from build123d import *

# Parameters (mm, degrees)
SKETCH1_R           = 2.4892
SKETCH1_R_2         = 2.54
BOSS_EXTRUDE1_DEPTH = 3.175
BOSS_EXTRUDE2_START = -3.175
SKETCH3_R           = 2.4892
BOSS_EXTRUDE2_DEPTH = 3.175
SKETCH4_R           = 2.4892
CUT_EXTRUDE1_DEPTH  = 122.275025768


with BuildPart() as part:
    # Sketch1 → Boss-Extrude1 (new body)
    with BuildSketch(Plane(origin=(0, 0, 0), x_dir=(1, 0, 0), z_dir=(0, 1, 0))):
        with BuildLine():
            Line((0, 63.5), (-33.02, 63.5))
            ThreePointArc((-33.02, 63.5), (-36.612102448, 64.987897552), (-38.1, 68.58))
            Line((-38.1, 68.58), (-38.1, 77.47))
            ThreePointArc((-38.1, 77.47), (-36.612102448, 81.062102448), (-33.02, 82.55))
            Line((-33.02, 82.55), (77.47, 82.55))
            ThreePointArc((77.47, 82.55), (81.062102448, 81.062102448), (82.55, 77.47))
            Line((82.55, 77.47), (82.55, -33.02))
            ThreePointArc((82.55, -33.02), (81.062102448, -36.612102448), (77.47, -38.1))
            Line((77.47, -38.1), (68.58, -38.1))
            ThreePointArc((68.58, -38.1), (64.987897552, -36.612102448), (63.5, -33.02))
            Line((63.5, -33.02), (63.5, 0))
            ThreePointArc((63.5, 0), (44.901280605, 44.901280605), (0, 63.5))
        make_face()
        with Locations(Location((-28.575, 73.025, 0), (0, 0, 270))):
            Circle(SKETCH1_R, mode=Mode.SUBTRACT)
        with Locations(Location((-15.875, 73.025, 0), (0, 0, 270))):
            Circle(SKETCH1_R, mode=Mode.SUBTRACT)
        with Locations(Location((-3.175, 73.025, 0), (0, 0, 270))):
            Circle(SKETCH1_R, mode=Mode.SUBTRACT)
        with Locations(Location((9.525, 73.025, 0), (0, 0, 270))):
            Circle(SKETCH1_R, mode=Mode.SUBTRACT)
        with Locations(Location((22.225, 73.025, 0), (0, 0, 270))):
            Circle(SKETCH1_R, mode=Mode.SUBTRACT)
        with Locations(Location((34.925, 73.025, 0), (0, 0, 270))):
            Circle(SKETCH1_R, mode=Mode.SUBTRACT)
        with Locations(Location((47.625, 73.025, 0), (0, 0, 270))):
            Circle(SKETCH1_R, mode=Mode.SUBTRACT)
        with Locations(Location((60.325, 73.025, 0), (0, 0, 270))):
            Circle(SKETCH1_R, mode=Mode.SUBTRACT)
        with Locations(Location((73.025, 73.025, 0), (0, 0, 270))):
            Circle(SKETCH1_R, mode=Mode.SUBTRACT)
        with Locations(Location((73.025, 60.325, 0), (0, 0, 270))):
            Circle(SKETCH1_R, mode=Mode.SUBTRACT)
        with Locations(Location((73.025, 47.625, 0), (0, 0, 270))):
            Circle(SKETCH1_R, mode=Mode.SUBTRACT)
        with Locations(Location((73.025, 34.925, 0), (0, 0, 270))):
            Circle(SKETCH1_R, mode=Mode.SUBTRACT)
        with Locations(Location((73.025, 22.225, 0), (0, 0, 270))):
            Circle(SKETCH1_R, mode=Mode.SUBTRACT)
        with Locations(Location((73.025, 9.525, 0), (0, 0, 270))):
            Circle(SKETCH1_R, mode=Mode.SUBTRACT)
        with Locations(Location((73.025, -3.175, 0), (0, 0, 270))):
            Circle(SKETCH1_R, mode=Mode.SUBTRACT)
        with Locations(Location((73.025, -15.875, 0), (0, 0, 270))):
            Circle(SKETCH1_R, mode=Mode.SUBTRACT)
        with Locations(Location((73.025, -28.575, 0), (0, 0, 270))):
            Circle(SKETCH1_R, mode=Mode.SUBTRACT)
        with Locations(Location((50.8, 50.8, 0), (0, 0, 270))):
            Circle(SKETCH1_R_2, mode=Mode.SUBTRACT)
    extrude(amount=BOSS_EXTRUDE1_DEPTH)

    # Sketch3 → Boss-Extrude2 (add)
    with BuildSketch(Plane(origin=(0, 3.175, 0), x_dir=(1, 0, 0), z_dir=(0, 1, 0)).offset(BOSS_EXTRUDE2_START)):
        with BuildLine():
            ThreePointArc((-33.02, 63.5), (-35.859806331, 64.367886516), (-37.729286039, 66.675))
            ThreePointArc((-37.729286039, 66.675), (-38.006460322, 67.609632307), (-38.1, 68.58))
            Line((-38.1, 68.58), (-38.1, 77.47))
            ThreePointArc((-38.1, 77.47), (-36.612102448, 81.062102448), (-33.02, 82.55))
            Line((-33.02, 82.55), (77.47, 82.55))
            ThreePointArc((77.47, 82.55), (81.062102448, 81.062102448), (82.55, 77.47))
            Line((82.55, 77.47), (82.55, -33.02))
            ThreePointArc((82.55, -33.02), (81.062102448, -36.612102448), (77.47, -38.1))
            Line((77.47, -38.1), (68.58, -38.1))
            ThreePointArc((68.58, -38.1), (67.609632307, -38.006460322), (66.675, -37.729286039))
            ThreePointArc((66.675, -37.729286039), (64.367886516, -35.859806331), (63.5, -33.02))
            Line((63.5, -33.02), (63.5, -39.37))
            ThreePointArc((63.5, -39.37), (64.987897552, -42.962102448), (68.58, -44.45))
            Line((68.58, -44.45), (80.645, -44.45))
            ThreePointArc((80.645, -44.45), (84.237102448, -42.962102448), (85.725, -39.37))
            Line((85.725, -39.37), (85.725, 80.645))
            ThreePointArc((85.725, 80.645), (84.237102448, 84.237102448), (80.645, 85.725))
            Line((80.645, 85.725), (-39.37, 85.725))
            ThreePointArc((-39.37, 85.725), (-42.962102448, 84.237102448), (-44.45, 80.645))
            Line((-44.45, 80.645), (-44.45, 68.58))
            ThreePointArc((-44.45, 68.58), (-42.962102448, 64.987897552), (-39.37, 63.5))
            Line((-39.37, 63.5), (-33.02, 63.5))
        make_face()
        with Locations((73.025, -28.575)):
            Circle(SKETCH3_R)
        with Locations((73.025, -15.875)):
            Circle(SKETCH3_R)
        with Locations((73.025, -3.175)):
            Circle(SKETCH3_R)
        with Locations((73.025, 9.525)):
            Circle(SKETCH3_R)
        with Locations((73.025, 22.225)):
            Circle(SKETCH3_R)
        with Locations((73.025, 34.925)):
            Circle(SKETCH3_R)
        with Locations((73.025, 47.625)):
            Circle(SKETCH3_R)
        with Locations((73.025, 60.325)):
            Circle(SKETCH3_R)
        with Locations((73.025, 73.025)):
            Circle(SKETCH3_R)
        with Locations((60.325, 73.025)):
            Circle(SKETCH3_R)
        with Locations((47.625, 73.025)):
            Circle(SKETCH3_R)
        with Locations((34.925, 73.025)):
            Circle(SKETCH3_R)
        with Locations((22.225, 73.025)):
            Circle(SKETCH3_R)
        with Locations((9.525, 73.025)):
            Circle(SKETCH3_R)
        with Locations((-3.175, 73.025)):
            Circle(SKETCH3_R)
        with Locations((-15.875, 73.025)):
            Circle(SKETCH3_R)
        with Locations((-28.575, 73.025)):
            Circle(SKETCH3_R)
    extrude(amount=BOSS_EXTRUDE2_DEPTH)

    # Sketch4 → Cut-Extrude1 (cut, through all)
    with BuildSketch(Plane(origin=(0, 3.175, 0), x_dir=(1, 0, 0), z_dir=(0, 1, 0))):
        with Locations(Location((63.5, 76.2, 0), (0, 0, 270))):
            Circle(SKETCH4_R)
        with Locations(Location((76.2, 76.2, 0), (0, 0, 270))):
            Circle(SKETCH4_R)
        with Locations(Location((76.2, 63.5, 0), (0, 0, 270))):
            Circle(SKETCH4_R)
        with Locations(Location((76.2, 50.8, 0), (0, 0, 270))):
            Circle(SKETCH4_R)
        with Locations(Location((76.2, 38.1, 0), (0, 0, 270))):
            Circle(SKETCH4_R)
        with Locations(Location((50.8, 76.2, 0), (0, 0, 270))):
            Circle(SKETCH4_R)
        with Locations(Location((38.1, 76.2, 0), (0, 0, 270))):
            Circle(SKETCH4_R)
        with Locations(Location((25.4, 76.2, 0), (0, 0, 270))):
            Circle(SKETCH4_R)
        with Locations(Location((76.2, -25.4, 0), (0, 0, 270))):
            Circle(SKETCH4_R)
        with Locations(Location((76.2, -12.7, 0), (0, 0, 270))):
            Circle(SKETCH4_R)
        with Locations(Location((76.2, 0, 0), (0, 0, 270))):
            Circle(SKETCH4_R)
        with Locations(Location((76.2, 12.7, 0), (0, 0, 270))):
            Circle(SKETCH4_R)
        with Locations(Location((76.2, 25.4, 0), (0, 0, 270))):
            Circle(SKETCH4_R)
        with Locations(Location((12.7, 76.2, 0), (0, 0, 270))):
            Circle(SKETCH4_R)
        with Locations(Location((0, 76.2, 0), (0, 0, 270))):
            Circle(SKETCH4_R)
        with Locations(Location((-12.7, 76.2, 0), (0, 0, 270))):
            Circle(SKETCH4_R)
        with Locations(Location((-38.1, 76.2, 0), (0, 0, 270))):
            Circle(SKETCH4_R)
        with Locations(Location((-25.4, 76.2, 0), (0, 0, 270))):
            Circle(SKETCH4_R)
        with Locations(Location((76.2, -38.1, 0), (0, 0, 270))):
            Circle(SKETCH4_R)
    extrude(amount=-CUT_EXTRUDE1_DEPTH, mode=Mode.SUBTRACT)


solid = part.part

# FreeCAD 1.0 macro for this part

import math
import FreeCAD as App
import Part
import Sketcher
Q = App.Units.Quantity

doc = App.newDocument("Part")
params = doc.addObject("Spreadsheet::Sheet", "Params")
for row, (alias, value) in enumerate([
    ("sketch1_diameter", "0.2 in"),
    ("sketch1_radius", "2.5 in"),
    ("sketch1_radius2", "0.2 in"),
    ("sketch1_diameter2", "0.196 in"),
    ("sketch1_width", "1.3 in"),
    ("pad1_length", "0.125 in"),
    ("sketch2_radius", "0.2 in"),
    ("sketch2_diameter", "0.196 in"),
    ("sketch2_width", "4.35 in"),
    ("sketch2_width2", "0.25 in"),
    ("sketch2_width3", "0.475 in"),
    ("pad2_length", "0.125 in"),
    ("sketch3_diameter", "0.196 in"),
], start=1):
    params.set(f"A{row}", alias)
    params.set(f"B{row}", "=" + value)
    params.setAlias(f"B{row}", alias)

body = doc.addObject("PartDesign::Body", "Body")

# Sketch on XZ plane
sketch1 = body.newObject("Sketcher::SketchObject", "Sketch")
sketch1.AttachmentSupport = (doc.getObject("XZ_Plane"), [""])
sketch1.MapMode = "FlatFace"
sketch1.addGeometry(Part.LineSegment(App.Vector(-33, -63.5, 0), App.Vector(0, -63.5, 0)), False)
sketch1.addGeometry(Part.ArcOfCircle(Part.Circle(App.Vector(0, 0, 0), App.Vector(0, 0, 1), 63.5), math.radians(-90), math.radians(0)), False)
sketch1.addGeometry(Part.LineSegment(App.Vector(63.5, 0, 0), App.Vector(63.5, 33, 0)), False)
sketch1.addGeometry(Part.ArcOfCircle(Part.Circle(App.Vector(68.6, 33, 0), App.Vector(0, 0, 1), 5.1), math.radians(90), math.radians(180)), False)
sketch1.addGeometry(Part.LineSegment(App.Vector(68.6, 38.1, 0), App.Vector(77.5, 38.1, 0)), False)
sketch1.addGeometry(Part.ArcOfCircle(Part.Circle(App.Vector(77.5, 33, 0), App.Vector(0, 0, 1), 5.1), math.radians(0), math.radians(90)), False)
sketch1.addGeometry(Part.LineSegment(App.Vector(82.5, 33, 0), App.Vector(82.5, -77.5, 0)), False)
sketch1.addGeometry(Part.ArcOfCircle(Part.Circle(App.Vector(77.5, -77.5, 0), App.Vector(0, 0, 1), 5.1), math.radians(-90), math.radians(0)), False)
sketch1.addGeometry(Part.LineSegment(App.Vector(77.5, -82.5, 0), App.Vector(-33, -82.5, 0)), False)
sketch1.addGeometry(Part.ArcOfCircle(Part.Circle(App.Vector(-33, -77.5, 0), App.Vector(0, 0, 1), 5.1), math.radians(-180), math.radians(-90)), False)
sketch1.addGeometry(Part.LineSegment(App.Vector(-38.1, -77.5, 0), App.Vector(-38.1, -68.6, 0)), False)
sketch1.addGeometry(Part.ArcOfCircle(Part.Circle(App.Vector(-33, -68.6, 0), App.Vector(0, 0, 1), 5.1), math.radians(90), math.radians(180)), False)
sketch1.addGeometry(Part.Circle(App.Vector(73, 28.6, 0), App.Vector(0, 0, 1), 2.5), False)
sketch1.addGeometry(Part.Circle(App.Vector(73, 15.9, 0), App.Vector(0, 0, 1), 2.5), False)
sketch1.addGeometry(Part.Circle(App.Vector(73, 3.2, 0), App.Vector(0, 0, 1), 2.5), False)
sketch1.addGeometry(Part.Circle(App.Vector(73, -9.5, 0), App.Vector(0, 0, 1), 2.5), False)
sketch1.addGeometry(Part.Circle(App.Vector(73, -22.2, 0), App.Vector(0, 0, 1), 2.5), False)
sketch1.addGeometry(Part.Circle(App.Vector(73, -34.9, 0), App.Vector(0, 0, 1), 2.5), False)
sketch1.addGeometry(Part.Circle(App.Vector(73, -47.6, 0), App.Vector(0, 0, 1), 2.5), False)
sketch1.addGeometry(Part.Circle(App.Vector(73, -60.3, 0), App.Vector(0, 0, 1), 2.5), False)
sketch1.addGeometry(Part.Circle(App.Vector(50.8, -50.8, 0), App.Vector(0, 0, 1), 2.5), False)
sketch1.addGeometry(Part.Circle(App.Vector(73, -73, 0), App.Vector(0, 0, 1), 2.5), False)
sketch1.addGeometry(Part.Circle(App.Vector(60.3, -73, 0), App.Vector(0, 0, 1), 2.5), False)
sketch1.addGeometry(Part.Circle(App.Vector(47.6, -73, 0), App.Vector(0, 0, 1), 2.5), False)
sketch1.addGeometry(Part.Circle(App.Vector(34.9, -73, 0), App.Vector(0, 0, 1), 2.5), False)
sketch1.addGeometry(Part.Circle(App.Vector(22.2, -73, 0), App.Vector(0, 0, 1), 2.5), False)
sketch1.addGeometry(Part.Circle(App.Vector(9.5, -73, 0), App.Vector(0, 0, 1), 2.5), False)
sketch1.addGeometry(Part.Circle(App.Vector(-3.2, -73, 0), App.Vector(0, 0, 1), 2.5), False)
sketch1.addGeometry(Part.Circle(App.Vector(-15.9, -73, 0), App.Vector(0, 0, 1), 2.5), False)
sketch1.addGeometry(Part.Circle(App.Vector(-28.6, -73, 0), App.Vector(0, 0, 1), 2.5), False)
sketch1.addConstraint(Sketcher.Constraint("Tangent", 0, 2, 1, 1))
sketch1.addConstraint(Sketcher.Constraint("Tangent", 1, 2, 2, 1))
sketch1.addConstraint(Sketcher.Constraint("Tangent", 2, 2, 3, 2))
sketch1.addConstraint(Sketcher.Constraint("Tangent", 3, 1, 4, 1))
sketch1.addConstraint(Sketcher.Constraint("Tangent", 4, 2, 5, 2))
sketch1.addConstraint(Sketcher.Constraint("Tangent", 5, 1, 6, 1))
sketch1.addConstraint(Sketcher.Constraint("Tangent", 6, 2, 7, 2))
sketch1.addConstraint(Sketcher.Constraint("Tangent", 7, 1, 8, 1))
sketch1.addConstraint(Sketcher.Constraint("Tangent", 8, 2, 9, 2))
sketch1.addConstraint(Sketcher.Constraint("Tangent", 9, 1, 10, 1))
sketch1.addConstraint(Sketcher.Constraint("Tangent", 10, 2, 11, 2))
sketch1.addConstraint(Sketcher.Constraint("Tangent", 11, 1, 0, 1))
sketch1.addConstraint(Sketcher.Constraint("Horizontal", 0))
sketch1.addConstraint(Sketcher.Constraint("Vertical", 2))
sketch1.addConstraint(Sketcher.Constraint("Horizontal", 4))
sketch1.addConstraint(Sketcher.Constraint("Vertical", 6))
sketch1.addConstraint(Sketcher.Constraint("Horizontal", 8))
sketch1.addConstraint(Sketcher.Constraint("Vertical", 10))
sketch1.addConstraint(Sketcher.Constraint("Coincident", 1, 3, -1, 1))
sketch1.addConstraint(Sketcher.Constraint("Equal", 3, 5))
sketch1.addConstraint(Sketcher.Constraint("Equal", 5, 7))
sketch1.addConstraint(Sketcher.Constraint("Equal", 7, 9))
sketch1.addConstraint(Sketcher.Constraint("Equal", 9, 11))
sketch1.addConstraint(Sketcher.Constraint("Equal", 12, 13))
sketch1.addConstraint(Sketcher.Constraint("Equal", 13, 14))
sketch1.addConstraint(Sketcher.Constraint("Equal", 14, 15))
sketch1.addConstraint(Sketcher.Constraint("Equal", 15, 16))
sketch1.addConstraint(Sketcher.Constraint("Equal", 16, 17))
sketch1.addConstraint(Sketcher.Constraint("Equal", 17, 18))
sketch1.addConstraint(Sketcher.Constraint("Equal", 18, 19))
sketch1.addConstraint(Sketcher.Constraint("Equal", 19, 21))
sketch1.addConstraint(Sketcher.Constraint("Equal", 21, 22))
sketch1.addConstraint(Sketcher.Constraint("Equal", 22, 23))
sketch1.addConstraint(Sketcher.Constraint("Equal", 23, 24))
sketch1.addConstraint(Sketcher.Constraint("Equal", 24, 25))
sketch1.addConstraint(Sketcher.Constraint("Equal", 25, 26))
sketch1.addConstraint(Sketcher.Constraint("Equal", 26, 27))
sketch1.addConstraint(Sketcher.Constraint("Equal", 27, 28))
sketch1.addConstraint(Sketcher.Constraint("Equal", 28, 29))
sketch1.addConstraint(Sketcher.Constraint("Horizontal", 21, 3, 22, 3))
sketch1.addConstraint(Sketcher.Constraint("Horizontal", 22, 3, 23, 3))
sketch1.addConstraint(Sketcher.Constraint("Horizontal", 23, 3, 24, 3))
sketch1.addConstraint(Sketcher.Constraint("Horizontal", 24, 3, 25, 3))
sketch1.addConstraint(Sketcher.Constraint("Horizontal", 25, 3, 26, 3))
sketch1.addConstraint(Sketcher.Constraint("Horizontal", 26, 3, 27, 3))
sketch1.addConstraint(Sketcher.Constraint("Horizontal", 27, 3, 28, 3))
sketch1.addConstraint(Sketcher.Constraint("Horizontal", 28, 3, 29, 3))
sketch1.addConstraint(Sketcher.Constraint("Vertical", 12, 3, 13, 3))
sketch1.addConstraint(Sketcher.Constraint("Vertical", 13, 3, 14, 3))
sketch1.addConstraint(Sketcher.Constraint("Vertical", 14, 3, 15, 3))
sketch1.addConstraint(Sketcher.Constraint("Vertical", 15, 3, 16, 3))
sketch1.addConstraint(Sketcher.Constraint("Vertical", 16, 3, 17, 3))
sketch1.addConstraint(Sketcher.Constraint("Vertical", 17, 3, 18, 3))
sketch1.addConstraint(Sketcher.Constraint("Vertical", 18, 3, 19, 3))
sketch1.addConstraint(Sketcher.Constraint("Vertical", 19, 3, 21, 3))
sketch1.addConstraint(Sketcher.Constraint("Equal", 0, 2))
sketch1.addConstraint(Sketcher.Constraint("Equal", 8, 6))
sketch1.addConstraint(Sketcher.Constraint("Diameter", 20, Q("0.2 in")))
sketch1.addConstraint(Sketcher.Constraint("Radius", 1, Q("2.5 in")))
sketch1.addConstraint(Sketcher.Constraint("Radius", 3, Q("0.2 in")))
sketch1.addConstraint(Sketcher.Constraint("Diameter", 12, Q("0.196 in")))
sketch1.addConstraint(Sketcher.Constraint("DistanceX", 0, 1, 0, 2, Q("1.3 in")))
sketch1.addConstraint(Sketcher.Constraint("DistanceX", -1, 1, 20, 3, Q("2 in")))
sketch1.addConstraint(Sketcher.Constraint("DistanceY", 20, 3, -1, 1, Q("2 in")))
sketch1.addConstraint(Sketcher.Constraint("DistanceY", 14, 3, 12, 3, Q("1 in")))
sketch1.addConstraint(Sketcher.Constraint("DistanceY", 15, 3, 13, 3, Q("1 in")))
sketch1.addConstraint(Sketcher.Constraint("DistanceY", 16, 3, 14, 3, Q("1 in")))
sketch1.addConstraint(Sketcher.Constraint("DistanceY", 17, 3, 15, 3, Q("1 in")))
sketch1.addConstraint(Sketcher.Constraint("DistanceY", 18, 3, 16, 3, Q("1 in")))
sketch1.addConstraint(Sketcher.Constraint("DistanceY", 19, 3, 17, 3, Q("1 in")))
sketch1.addConstraint(Sketcher.Constraint("DistanceY", 21, 3, 18, 3, Q("1 in")))
sketch1.addConstraint(Sketcher.Constraint("DistanceX", 23, 3, 21, 3, Q("1 in")))
sketch1.addConstraint(Sketcher.Constraint("DistanceX", 24, 3, 22, 3, Q("1 in")))
sketch1.addConstraint(Sketcher.Constraint("DistanceX", 25, 3, 23, 3, Q("1 in")))
sketch1.addConstraint(Sketcher.Constraint("DistanceX", 26, 3, 24, 3, Q("1 in")))
sketch1.addConstraint(Sketcher.Constraint("DistanceX", 27, 3, 25, 3, Q("1 in")))
sketch1.addConstraint(Sketcher.Constraint("DistanceX", 28, 3, 26, 3, Q("1 in")))
sketch1.addConstraint(Sketcher.Constraint("DistanceX", 29, 3, 27, 3, Q("1 in")))
sketch1.addConstraint(Sketcher.Constraint("DistanceX", 4, 1, 4, 2, Q("0.35 in")))
sketch1.addConstraint(Sketcher.Constraint("DistanceY", 13, 3, 12, 3, Q("0.5 in")))
sketch1.addConstraint(Sketcher.Constraint("DistanceX", 22, 3, 21, 3, Q("0.5 in")))
sketch1.addConstraint(Sketcher.Constraint("DistanceX", -1, 1, 12, 3, Q("2.875 in")))
sketch1.addConstraint(Sketcher.Constraint("DistanceY", -1, 1, 12, 3, Q("1.125 in")))
sketch1.setExpression("Constraints[57]", "Params.sketch1_diameter")
sketch1.setExpression("Constraints[58]", "Params.sketch1_radius")
sketch1.setExpression("Constraints[59]", "Params.sketch1_radius2")
sketch1.setExpression("Constraints[60]", "Params.sketch1_diameter2")
sketch1.setExpression("Constraints[61]", "Params.sketch1_width")
pad1 = body.newObject("PartDesign::Pad", "Pad")
pad1.Profile = sketch1
pad1.setExpression("Length", "Params.pad1_length")
pad1.Reversed = True

# Sketch on XZ plane
sketch2 = body.newObject("Sketcher::SketchObject", "Sketch001")
sketch2.AttachmentSupport = (doc.getObject("XZ_Plane"), [""])
sketch2.MapMode = "FlatFace"
sketch2.addGeometry(Part.ArcOfCircle(Part.Circle(App.Vector(-33, -68.6, 0), App.Vector(0, 0, 1), 5.1), math.radians(90), math.radians(158)), False)
sketch2.addGeometry(Part.ArcOfCircle(Part.Circle(App.Vector(-33, -68.6, 0), App.Vector(0, 0, 1), 5.1), math.radians(158), math.radians(180)), False)
sketch2.addGeometry(Part.LineSegment(App.Vector(-38.1, -68.6, 0), App.Vector(-38.1, -77.5, 0)), False)
sketch2.addGeometry(Part.ArcOfCircle(Part.Circle(App.Vector(-33, -77.5, 0), App.Vector(0, 0, 1), 5.1), math.radians(-180), math.radians(-90)), False)
sketch2.addGeometry(Part.LineSegment(App.Vector(-33, -82.5, 0), App.Vector(77.5, -82.5, 0)), False)
sketch2.addGeometry(Part.ArcOfCircle(Part.Circle(App.Vector(77.5, -77.5, 0), App.Vector(0, 0, 1), 5.1), math.radians(-90), math.radians(0)), False)
sketch2.addGeometry(Part.LineSegment(App.Vector(82.5, -77.5, 0), App.Vector(82.5, 33, 0)), False)
sketch2.addGeometry(Part.ArcOfCircle(Part.Circle(App.Vector(77.5, 33, 0), App.Vector(0, 0, 1), 5.1), math.radians(0), math.radians(90)), False)
sketch2.addGeometry(Part.LineSegment(App.Vector(77.5, 38.1, 0), App.Vector(68.6, 38.1, 0)), False)
sketch2.addGeometry(Part.ArcOfCircle(Part.Circle(App.Vector(68.6, 33, 0), App.Vector(0, 0, 1), 5.1), math.radians(90), math.radians(112)), False)
sketch2.addGeometry(Part.ArcOfCircle(Part.Circle(App.Vector(68.6, 33, 0), App.Vector(0, 0, 1), 5.1), math.radians(112), math.radians(180)), False)
sketch2.addGeometry(Part.LineSegment(App.Vector(63.5, 33, 0), App.Vector(63.5, 39.4, 0)), False)
sketch2.addGeometry(Part.ArcOfCircle(Part.Circle(App.Vector(68.6, 39.4, 0), App.Vector(0, 0, 1), 5.1), math.radians(90), math.radians(180)), False)
sketch2.addGeometry(Part.LineSegment(App.Vector(68.6, 44.5, 0), App.Vector(80.6, 44.5, 0)), False)
sketch2.addGeometry(Part.ArcOfCircle(Part.Circle(App.Vector(80.6, 39.4, 0), App.Vector(0, 0, 1), 5.1), math.radians(0), math.radians(90)), False)
sketch2.addGeometry(Part.LineSegment(App.Vector(85.7, 39.4, 0), App.Vector(85.7, -80.6, 0)), False)
sketch2.addGeometry(Part.ArcOfCircle(Part.Circle(App.Vector(80.6, -80.6, 0), App.Vector(0, 0, 1), 5.1), math.radians(-90), math.radians(0)), False)
sketch2.addGeometry(Part.LineSegment(App.Vector(80.6, -85.7, 0), App.Vector(-39.4, -85.7, 0)), False)
sketch2.addGeometry(Part.ArcOfCircle(Part.Circle(App.Vector(-39.4, -80.6, 0), App.Vector(0, 0, 1), 5.1), math.radians(-180), math.radians(-90)), False)
sketch2.addGeometry(Part.LineSegment(App.Vector(-44.5, -80.6, 0), App.Vector(-44.5, -68.6, 0)), False)
sketch2.addGeometry(Part.ArcOfCircle(Part.Circle(App.Vector(-39.4, -68.6, 0), App.Vector(0, 0, 1), 5.1), math.radians(90), math.radians(180)), False)
sketch2.addGeometry(Part.LineSegment(App.Vector(-39.4, -63.5, 0), App.Vector(-33, -63.5, 0)), False)
sketch2.addGeometry(Part.Circle(App.Vector(73, 28.6, 0), App.Vector(0, 0, 1), 2.5), False)
sketch2.addGeometry(Part.Circle(App.Vector(73, 15.9, 0), App.Vector(0, 0, 1), 2.5), False)
sketch2.addGeometry(Part.Circle(App.Vector(73, 3.2, 0), App.Vector(0, 0, 1), 2.5), False)
sketch2.addGeometry(Part.Circle(App.Vector(73, -9.5, 0), App.Vector(0, 0, 1), 2.5), False)
sketch2.addGeometry(Part.Circle(App.Vector(73, -22.2, 0), App.Vector(0, 0, 1), 2.5), False)
sketch2.addGeometry(Part.Circle(App.Vector(73, -34.9, 0), App.Vector(0, 0, 1), 2.5), False)
sketch2.addGeometry(Part.Circle(App.Vector(73, -47.6, 0), App.Vector(0, 0, 1), 2.5), False)
sketch2.addGeometry(Part.Circle(App.Vector(73, -60.3, 0), App.Vector(0, 0, 1), 2.5), False)
sketch2.addGeometry(Part.Circle(App.Vector(73, -73, 0), App.Vector(0, 0, 1), 2.5), False)
sketch2.addGeometry(Part.Circle(App.Vector(60.3, -73, 0), App.Vector(0, 0, 1), 2.5), False)
sketch2.addGeometry(Part.Circle(App.Vector(47.6, -73, 0), App.Vector(0, 0, 1), 2.5), False)
sketch2.addGeometry(Part.Circle(App.Vector(34.9, -73, 0), App.Vector(0, 0, 1), 2.5), False)
sketch2.addGeometry(Part.Circle(App.Vector(22.2, -73, 0), App.Vector(0, 0, 1), 2.5), False)
sketch2.addGeometry(Part.Circle(App.Vector(9.5, -73, 0), App.Vector(0, 0, 1), 2.5), False)
sketch2.addGeometry(Part.Circle(App.Vector(-3.2, -73, 0), App.Vector(0, 0, 1), 2.5), False)
sketch2.addGeometry(Part.Circle(App.Vector(-15.9, -73, 0), App.Vector(0, 0, 1), 2.5), False)
sketch2.addGeometry(Part.Circle(App.Vector(-28.6, -73, 0), App.Vector(0, 0, 1), 2.5), False)
sketch2.addConstraint(Sketcher.Constraint("Tangent", 0, 2, 1, 1))
sketch2.addConstraint(Sketcher.Constraint("Tangent", 1, 2, 2, 1))
sketch2.addConstraint(Sketcher.Constraint("Tangent", 2, 2, 3, 1))
sketch2.addConstraint(Sketcher.Constraint("Tangent", 3, 2, 4, 1))
sketch2.addConstraint(Sketcher.Constraint("Tangent", 4, 2, 5, 1))
sketch2.addConstraint(Sketcher.Constraint("Tangent", 5, 2, 6, 1))
sketch2.addConstraint(Sketcher.Constraint("Tangent", 6, 2, 7, 1))
sketch2.addConstraint(Sketcher.Constraint("Tangent", 7, 2, 8, 1))
sketch2.addConstraint(Sketcher.Constraint("Tangent", 8, 2, 9, 1))
sketch2.addConstraint(Sketcher.Constraint("Tangent", 9, 2, 10, 1))
sketch2.addConstraint(Sketcher.Constraint("Tangent", 10, 2, 11, 1))
sketch2.addConstraint(Sketcher.Constraint("Tangent", 11, 2, 12, 2))
sketch2.addConstraint(Sketcher.Constraint("Tangent", 12, 1, 13, 1))
sketch2.addConstraint(Sketcher.Constraint("Tangent", 13, 2, 14, 2))
sketch2.addConstraint(Sketcher.Constraint("Tangent", 14, 1, 15, 1))
sketch2.addConstraint(Sketcher.Constraint("Tangent", 15, 2, 16, 2))
sketch2.addConstraint(Sketcher.Constraint("Tangent", 16, 1, 17, 1))
sketch2.addConstraint(Sketcher.Constraint("Tangent", 17, 2, 18, 2))
sketch2.addConstraint(Sketcher.Constraint("Tangent", 18, 1, 19, 1))
sketch2.addConstraint(Sketcher.Constraint("Tangent", 19, 2, 20, 2))
sketch2.addConstraint(Sketcher.Constraint("Tangent", 20, 1, 21, 1))
sketch2.addConstraint(Sketcher.Constraint("Tangent", 21, 2, 0, 1))
sketch2.addConstraint(Sketcher.Constraint("Vertical", 2))
sketch2.addConstraint(Sketcher.Constraint("Horizontal", 4))
sketch2.addConstraint(Sketcher.Constraint("Vertical", 6))
sketch2.addConstraint(Sketcher.Constraint("Horizontal", 8))
sketch2.addConstraint(Sketcher.Constraint("Vertical", 11))
sketch2.addConstraint(Sketcher.Constraint("Horizontal", 13))
sketch2.addConstraint(Sketcher.Constraint("Vertical", 15))
sketch2.addConstraint(Sketcher.Constraint("Horizontal", 17))
sketch2.addConstraint(Sketcher.Constraint("Vertical", 19))
sketch2.addConstraint(Sketcher.Constraint("Horizontal", 21))
sketch2.addConstraint(Sketcher.Constraint("Equal", 0, 1))
sketch2.addConstraint(Sketcher.Constraint("Equal", 1, 3))
sketch2.addConstraint(Sketcher.Constraint("Equal", 3, 5))
sketch2.addConstraint(Sketcher.Constraint("Equal", 5, 7))
sketch2.addConstraint(Sketcher.Constraint("Equal", 7, 9))
sketch2.addConstraint(Sketcher.Constraint("Equal", 9, 10))
sketch2.addConstraint(Sketcher.Constraint("Equal", 10, 12))
sketch2.addConstraint(Sketcher.Constraint("Equal", 12, 14))
sketch2.addConstraint(Sketcher.Constraint("Equal", 14, 16))
sketch2.addConstraint(Sketcher.Constraint("Equal", 16, 18))
sketch2.addConstraint(Sketcher.Constraint("Equal", 18, 20))
sketch2.addConstraint(Sketcher.Constraint("Equal", 22, 23))
sketch2.addConstraint(Sketcher.Constraint("Equal", 23, 24))
sketch2.addConstraint(Sketcher.Constraint("Equal", 24, 25))
sketch2.addConstraint(Sketcher.Constraint("Equal", 25, 26))
sketch2.addConstraint(Sketcher.Constraint("Equal", 26, 27))
sketch2.addConstraint(Sketcher.Constraint("Equal", 27, 28))
sketch2.addConstraint(Sketcher.Constraint("Equal", 28, 29))
sketch2.addConstraint(Sketcher.Constraint("Equal", 29, 30))
sketch2.addConstraint(Sketcher.Constraint("Equal", 30, 31))
sketch2.addConstraint(Sketcher.Constraint("Equal", 31, 32))
sketch2.addConstraint(Sketcher.Constraint("Equal", 32, 33))
sketch2.addConstraint(Sketcher.Constraint("Equal", 33, 34))
sketch2.addConstraint(Sketcher.Constraint("Equal", 34, 35))
sketch2.addConstraint(Sketcher.Constraint("Equal", 35, 36))
sketch2.addConstraint(Sketcher.Constraint("Equal", 36, 37))
sketch2.addConstraint(Sketcher.Constraint("Equal", 37, 38))
sketch2.addConstraint(Sketcher.Constraint("Horizontal", 30, 3, 31, 3))
sketch2.addConstraint(Sketcher.Constraint("Horizontal", 31, 3, 32, 3))
sketch2.addConstraint(Sketcher.Constraint("Horizontal", 32, 3, 33, 3))
sketch2.addConstraint(Sketcher.Constraint("Horizontal", 33, 3, 34, 3))
sketch2.addConstraint(Sketcher.Constraint("Horizontal", 34, 3, 35, 3))
sketch2.addConstraint(Sketcher.Constraint("Horizontal", 35, 3, 36, 3))
sketch2.addConstraint(Sketcher.Constraint("Horizontal", 36, 3, 37, 3))
sketch2.addConstraint(Sketcher.Constraint("Horizontal", 37, 3, 38, 3))
sketch2.addConstraint(Sketcher.Constraint("Vertical", 22, 3, 23, 3))
sketch2.addConstraint(Sketcher.Constraint("Vertical", 23, 3, 24, 3))
sketch2.addConstraint(Sketcher.Constraint("Vertical", 24, 3, 25, 3))
sketch2.addConstraint(Sketcher.Constraint("Vertical", 25, 3, 26, 3))
sketch2.addConstraint(Sketcher.Constraint("Vertical", 26, 3, 27, 3))
sketch2.addConstraint(Sketcher.Constraint("Vertical", 27, 3, 28, 3))
sketch2.addConstraint(Sketcher.Constraint("Vertical", 28, 3, 29, 3))
sketch2.addConstraint(Sketcher.Constraint("Vertical", 29, 3, 30, 3))
sketch2.addConstraint(Sketcher.Constraint("Equal", 8, 2))
sketch2.addConstraint(Sketcher.Constraint("Equal", 4, 6))
sketch2.addConstraint(Sketcher.Constraint("Equal", 21, 11))
sketch2.addConstraint(Sketcher.Constraint("Equal", 17, 15))
sketch2.addConstraint(Sketcher.Constraint("Radius", 0, Q("0.2 in")))
sketch2.addConstraint(Sketcher.Constraint("Diameter", 22, Q("0.196 in")))
sketch2.addConstraint(Sketcher.Constraint("DistanceY", 0, 3, 7, 3, Q("4 in")))
sketch2.addConstraint(Sketcher.Constraint("DistanceY", 24, 3, 22, 3, Q("1 in")))
sketch2.addConstraint(Sketcher.Constraint("DistanceY", 25, 3, 23, 3, Q("1 in")))
sketch2.addConstraint(Sketcher.Constraint("DistanceY", 26, 3, 24, 3, Q("1 in")))
sketch2.addConstraint(Sketcher.Constraint("DistanceY", 27, 3, 25, 3, Q("1 in")))
sketch2.addConstraint(Sketcher.Constraint("DistanceY", 28, 3, 26, 3, Q("1 in")))
sketch2.addConstraint(Sketcher.Constraint("DistanceY", 29, 3, 27, 3, Q("1 in")))
sketch2.addConstraint(Sketcher.Constraint("DistanceY", 30, 3, 28, 3, Q("1 in")))
sketch2.addConstraint(Sketcher.Constraint("DistanceX", 32, 3, 30, 3, Q("1 in")))
sketch2.addConstraint(Sketcher.Constraint("DistanceX", 33, 3, 31, 3, Q("1 in")))
sketch2.addConstraint(Sketcher.Constraint("DistanceX", 34, 3, 32, 3, Q("1 in")))
sketch2.addConstraint(Sketcher.Constraint("DistanceX", 35, 3, 33, 3, Q("1 in")))
sketch2.addConstraint(Sketcher.Constraint("DistanceX", 36, 3, 34, 3, Q("1 in")))
sketch2.addConstraint(Sketcher.Constraint("DistanceX", 4, 1, 4, 2, Q("4.35 in")))
sketch2.addConstraint(Sketcher.Constraint("DistanceX", 21, 1, 21, 2, Q("0.25 in")))
sketch2.addConstraint(Sketcher.Constraint("DistanceX", 0, 3, -1, 1, Q("1.3 in")))
sketch2.addConstraint(Sketcher.Constraint("DistanceY", 0, 3, -1, 1, Q("2.7 in")))
sketch2.addConstraint(Sketcher.Constraint("DistanceX", 22, 3, 14, 3, Q("0.3 in")))
sketch2.addConstraint(Sketcher.Constraint("DistanceY", 23, 3, 22, 3, Q("0.5 in")))
sketch2.addConstraint(Sketcher.Constraint("DistanceY", 16, 3, 27, 3, Q("1.8 in")))
sketch2.addConstraint(Sketcher.Constraint("DistanceX", 31, 3, 30, 3, Q("0.5 in")))
sketch2.addConstraint(Sketcher.Constraint("DistanceX", 37, 3, 36, 3, Q("0.5 in")))
sketch2.addConstraint(Sketcher.Constraint("DistanceX", 38, 3, 37, 3, Q("0.5 in")))
sketch2.addConstraint(Sketcher.Constraint("DistanceX", 13, 1, 13, 2, Q("0.475 in")))
sketch2.addConstraint(Sketcher.Constraint("DistanceY", 38, 3, 0, 2, Q("0.25 in")))
sketch2.addConstraint(Sketcher.Constraint("DistanceX", -1, 1, 9, 2, Q("2.625 in")))
sketch2.setExpression("Constraints[79]", "Params.sketch2_radius")
sketch2.setExpression("Constraints[80]", "Params.sketch2_diameter")
sketch2.setExpression("Constraints[94]", "Params.sketch2_width")
sketch2.setExpression("Constraints[95]", "Params.sketch2_width2")
sketch2.setExpression("Constraints[104]", "Params.sketch2_width3")
pad2 = body.newObject("PartDesign::Pad", "Pad001")
pad2.Profile = sketch2
pad2.setExpression("Length", "Params.pad2_length")
pad2.Reversed = True

# Sketch on XZ plane
sketch3 = body.newObject("Sketcher::SketchObject", "Sketch002")
sketch3.AttachmentSupport = (doc.getObject("XZ_Plane"), [""])
sketch3.MapMode = "FlatFace"
sketch3.AttachmentOffset = App.Placement(App.Vector(0, 0, -0.125 * 25.4), App.Rotation())
sketch3.addGeometry(Part.Circle(App.Vector(63.5, -76.2, 0), App.Vector(0, 0, 1), 2.5), False)
sketch3.addGeometry(Part.Circle(App.Vector(76.2, -76.2, 0), App.Vector(0, 0, 1), 2.5), False)
sketch3.addGeometry(Part.Circle(App.Vector(76.2, -63.5, 0), App.Vector(0, 0, 1), 2.5), False)
sketch3.addGeometry(Part.Circle(App.Vector(76.2, -50.8, 0), App.Vector(0, 0, 1), 2.5), False)
sketch3.addGeometry(Part.Circle(App.Vector(76.2, -38.1, 0), App.Vector(0, 0, 1), 2.5), False)
sketch3.addGeometry(Part.Circle(App.Vector(50.8, -76.2, 0), App.Vector(0, 0, 1), 2.5), False)
sketch3.addGeometry(Part.Circle(App.Vector(38.1, -76.2, 0), App.Vector(0, 0, 1), 2.5), False)
sketch3.addGeometry(Part.Circle(App.Vector(25.4, -76.2, 0), App.Vector(0, 0, 1), 2.5), False)
sketch3.addGeometry(Part.Circle(App.Vector(76.2, 25.4, 0), App.Vector(0, 0, 1), 2.5), False)
sketch3.addGeometry(Part.Circle(App.Vector(76.2, 12.7, 0), App.Vector(0, 0, 1), 2.5), False)
sketch3.addGeometry(Part.Circle(App.Vector(76.2, 0, 0), App.Vector(0, 0, 1), 2.5), False)
sketch3.addGeometry(Part.Circle(App.Vector(76.2, -12.7, 0), App.Vector(0, 0, 1), 2.5), False)
sketch3.addGeometry(Part.Circle(App.Vector(76.2, -25.4, 0), App.Vector(0, 0, 1), 2.5), False)
sketch3.addGeometry(Part.Circle(App.Vector(12.7, -76.2, 0), App.Vector(0, 0, 1), 2.5), False)
sketch3.addGeometry(Part.Circle(App.Vector(0, -76.2, 0), App.Vector(0, 0, 1), 2.5), False)
sketch3.addGeometry(Part.Circle(App.Vector(-12.7, -76.2, 0), App.Vector(0, 0, 1), 2.5), False)
sketch3.addGeometry(Part.Circle(App.Vector(-38.1, -76.2, 0), App.Vector(0, 0, 1), 2.5), False)
sketch3.addGeometry(Part.Circle(App.Vector(-25.4, -76.2, 0), App.Vector(0, 0, 1), 2.5), False)
sketch3.addGeometry(Part.Circle(App.Vector(76.2, 38.1, 0), App.Vector(0, 0, 1), 2.5), False)
sketch3.addConstraint(Sketcher.Constraint("Equal", 0, 1))
sketch3.addConstraint(Sketcher.Constraint("Equal", 1, 2))
sketch3.addConstraint(Sketcher.Constraint("Equal", 2, 3))
sketch3.addConstraint(Sketcher.Constraint("Equal", 3, 4))
sketch3.addConstraint(Sketcher.Constraint("Equal", 4, 5))
sketch3.addConstraint(Sketcher.Constraint("Equal", 5, 6))
sketch3.addConstraint(Sketcher.Constraint("Equal", 6, 7))
sketch3.addConstraint(Sketcher.Constraint("Equal", 7, 8))
sketch3.addConstraint(Sketcher.Constraint("Equal", 8, 9))
sketch3.addConstraint(Sketcher.Constraint("Equal", 9, 10))
sketch3.addConstraint(Sketcher.Constraint("Equal", 10, 11))
sketch3.addConstraint(Sketcher.Constraint("Equal", 11, 12))
sketch3.addConstraint(Sketcher.Constraint("Equal", 12, 13))
sketch3.addConstraint(Sketcher.Constraint("Equal", 13, 14))
sketch3.addConstraint(Sketcher.Constraint("Equal", 14, 15))
sketch3.addConstraint(Sketcher.Constraint("Equal", 15, 16))
sketch3.addConstraint(Sketcher.Constraint("Equal", 16, 17))
sketch3.addConstraint(Sketcher.Constraint("Equal", 17, 18))
sketch3.addConstraint(Sketcher.Constraint("Symmetric", 13, 3, 15, 3, -2))
sketch3.addConstraint(Sketcher.Constraint("Symmetric", 6, 3, 16, 3, -2))
sketch3.addConstraint(Sketcher.Constraint("Symmetric", 7, 3, 17, 3, -2))
sketch3.addConstraint(Sketcher.Constraint("Symmetric", 9, 3, 11, 3, -1))
sketch3.addConstraint(Sketcher.Constraint("Symmetric", 8, 3, 12, 3, -1))
sketch3.addConstraint(Sketcher.Constraint("Symmetric", 4, 3, 18, 3, -1))
sketch3.addConstraint(Sketcher.Constraint("PointOnObject", 10, 3, -1))
sketch3.addConstraint(Sketcher.Constraint("PointOnObject", 14, 3, -2))
sketch3.addConstraint(Sketcher.Constraint("Horizontal", 0, 3, 1, 3))
sketch3.addConstraint(Sketcher.Constraint("Horizontal", 1, 3, 5, 3))
sketch3.addConstraint(Sketcher.Constraint("Horizontal", 5, 3, 6, 3))
sketch3.addConstraint(Sketcher.Constraint("Horizontal", 6, 3, 7, 3))
sketch3.addConstraint(Sketcher.Constraint("Horizontal", 7, 3, 13, 3))
sketch3.addConstraint(Sketcher.Constraint("Horizontal", 13, 3, 14, 3))
sketch3.addConstraint(Sketcher.Constraint("Vertical", 1, 3, 2, 3))
sketch3.addConstraint(Sketcher.Constraint("Vertical", 2, 3, 3, 3))
sketch3.addConstraint(Sketcher.Constraint("Vertical", 3, 3, 4, 3))
sketch3.addConstraint(Sketcher.Constraint("Vertical", 4, 3, 8, 3))
sketch3.addConstraint(Sketcher.Constraint("Vertical", 8, 3, 9, 3))
sketch3.addConstraint(Sketcher.Constraint("Vertical", 9, 3, 10, 3))
sketch3.addConstraint(Sketcher.Constraint("Diameter", 0, Q("0.196 in")))
sketch3.addConstraint(Sketcher.Constraint("DistanceY", 0, 3, -1, 1, Q("3 in")))
sketch3.addConstraint(Sketcher.Constraint("DistanceX", -1, 1, 1, 3, Q("3 in")))
sketch3.addConstraint(Sketcher.Constraint("DistanceY", 3, 3, -1, 1, Q("2 in")))
sketch3.addConstraint(Sketcher.Constraint("DistanceX", -1, 1, 5, 3, Q("2 in")))
sketch3.addConstraint(Sketcher.Constraint("DistanceX", -1, 1, 7, 3, Q("1 in")))
sketch3.addConstraint(Sketcher.Constraint("DistanceY", -1, 1, 8, 3, Q("1 in")))
sketch3.addConstraint(Sketcher.Constraint("DistanceY", 2, 3, 4, 3, Q("1 in")))
sketch3.addConstraint(Sketcher.Constraint("DistanceX", 6, 3, 0, 3, Q("1 in")))
sketch3.addConstraint(Sketcher.Constraint("DistanceY", 4, 3, 9, 3, Q("2 in")))
sketch3.addConstraint(Sketcher.Constraint("DistanceY", 11, 3, 9, 3, Q("1 in")))
sketch3.addConstraint(Sketcher.Constraint("DistanceX", 13, 3, 6, 3, Q("1 in")))
sketch3.addConstraint(Sketcher.Constraint("DistanceX", 15, 3, 13, 3, Q("1 in")))
sketch3.setExpression("Constraints[38]", "Params.sketch3_diameter")
pocket1 = body.newObject("PartDesign::Pocket", "Pocket")
pocket1.Profile = sketch3
pocket1.Type = "ThroughAll"
pocket1.Reversed = True

doc.recompute()
